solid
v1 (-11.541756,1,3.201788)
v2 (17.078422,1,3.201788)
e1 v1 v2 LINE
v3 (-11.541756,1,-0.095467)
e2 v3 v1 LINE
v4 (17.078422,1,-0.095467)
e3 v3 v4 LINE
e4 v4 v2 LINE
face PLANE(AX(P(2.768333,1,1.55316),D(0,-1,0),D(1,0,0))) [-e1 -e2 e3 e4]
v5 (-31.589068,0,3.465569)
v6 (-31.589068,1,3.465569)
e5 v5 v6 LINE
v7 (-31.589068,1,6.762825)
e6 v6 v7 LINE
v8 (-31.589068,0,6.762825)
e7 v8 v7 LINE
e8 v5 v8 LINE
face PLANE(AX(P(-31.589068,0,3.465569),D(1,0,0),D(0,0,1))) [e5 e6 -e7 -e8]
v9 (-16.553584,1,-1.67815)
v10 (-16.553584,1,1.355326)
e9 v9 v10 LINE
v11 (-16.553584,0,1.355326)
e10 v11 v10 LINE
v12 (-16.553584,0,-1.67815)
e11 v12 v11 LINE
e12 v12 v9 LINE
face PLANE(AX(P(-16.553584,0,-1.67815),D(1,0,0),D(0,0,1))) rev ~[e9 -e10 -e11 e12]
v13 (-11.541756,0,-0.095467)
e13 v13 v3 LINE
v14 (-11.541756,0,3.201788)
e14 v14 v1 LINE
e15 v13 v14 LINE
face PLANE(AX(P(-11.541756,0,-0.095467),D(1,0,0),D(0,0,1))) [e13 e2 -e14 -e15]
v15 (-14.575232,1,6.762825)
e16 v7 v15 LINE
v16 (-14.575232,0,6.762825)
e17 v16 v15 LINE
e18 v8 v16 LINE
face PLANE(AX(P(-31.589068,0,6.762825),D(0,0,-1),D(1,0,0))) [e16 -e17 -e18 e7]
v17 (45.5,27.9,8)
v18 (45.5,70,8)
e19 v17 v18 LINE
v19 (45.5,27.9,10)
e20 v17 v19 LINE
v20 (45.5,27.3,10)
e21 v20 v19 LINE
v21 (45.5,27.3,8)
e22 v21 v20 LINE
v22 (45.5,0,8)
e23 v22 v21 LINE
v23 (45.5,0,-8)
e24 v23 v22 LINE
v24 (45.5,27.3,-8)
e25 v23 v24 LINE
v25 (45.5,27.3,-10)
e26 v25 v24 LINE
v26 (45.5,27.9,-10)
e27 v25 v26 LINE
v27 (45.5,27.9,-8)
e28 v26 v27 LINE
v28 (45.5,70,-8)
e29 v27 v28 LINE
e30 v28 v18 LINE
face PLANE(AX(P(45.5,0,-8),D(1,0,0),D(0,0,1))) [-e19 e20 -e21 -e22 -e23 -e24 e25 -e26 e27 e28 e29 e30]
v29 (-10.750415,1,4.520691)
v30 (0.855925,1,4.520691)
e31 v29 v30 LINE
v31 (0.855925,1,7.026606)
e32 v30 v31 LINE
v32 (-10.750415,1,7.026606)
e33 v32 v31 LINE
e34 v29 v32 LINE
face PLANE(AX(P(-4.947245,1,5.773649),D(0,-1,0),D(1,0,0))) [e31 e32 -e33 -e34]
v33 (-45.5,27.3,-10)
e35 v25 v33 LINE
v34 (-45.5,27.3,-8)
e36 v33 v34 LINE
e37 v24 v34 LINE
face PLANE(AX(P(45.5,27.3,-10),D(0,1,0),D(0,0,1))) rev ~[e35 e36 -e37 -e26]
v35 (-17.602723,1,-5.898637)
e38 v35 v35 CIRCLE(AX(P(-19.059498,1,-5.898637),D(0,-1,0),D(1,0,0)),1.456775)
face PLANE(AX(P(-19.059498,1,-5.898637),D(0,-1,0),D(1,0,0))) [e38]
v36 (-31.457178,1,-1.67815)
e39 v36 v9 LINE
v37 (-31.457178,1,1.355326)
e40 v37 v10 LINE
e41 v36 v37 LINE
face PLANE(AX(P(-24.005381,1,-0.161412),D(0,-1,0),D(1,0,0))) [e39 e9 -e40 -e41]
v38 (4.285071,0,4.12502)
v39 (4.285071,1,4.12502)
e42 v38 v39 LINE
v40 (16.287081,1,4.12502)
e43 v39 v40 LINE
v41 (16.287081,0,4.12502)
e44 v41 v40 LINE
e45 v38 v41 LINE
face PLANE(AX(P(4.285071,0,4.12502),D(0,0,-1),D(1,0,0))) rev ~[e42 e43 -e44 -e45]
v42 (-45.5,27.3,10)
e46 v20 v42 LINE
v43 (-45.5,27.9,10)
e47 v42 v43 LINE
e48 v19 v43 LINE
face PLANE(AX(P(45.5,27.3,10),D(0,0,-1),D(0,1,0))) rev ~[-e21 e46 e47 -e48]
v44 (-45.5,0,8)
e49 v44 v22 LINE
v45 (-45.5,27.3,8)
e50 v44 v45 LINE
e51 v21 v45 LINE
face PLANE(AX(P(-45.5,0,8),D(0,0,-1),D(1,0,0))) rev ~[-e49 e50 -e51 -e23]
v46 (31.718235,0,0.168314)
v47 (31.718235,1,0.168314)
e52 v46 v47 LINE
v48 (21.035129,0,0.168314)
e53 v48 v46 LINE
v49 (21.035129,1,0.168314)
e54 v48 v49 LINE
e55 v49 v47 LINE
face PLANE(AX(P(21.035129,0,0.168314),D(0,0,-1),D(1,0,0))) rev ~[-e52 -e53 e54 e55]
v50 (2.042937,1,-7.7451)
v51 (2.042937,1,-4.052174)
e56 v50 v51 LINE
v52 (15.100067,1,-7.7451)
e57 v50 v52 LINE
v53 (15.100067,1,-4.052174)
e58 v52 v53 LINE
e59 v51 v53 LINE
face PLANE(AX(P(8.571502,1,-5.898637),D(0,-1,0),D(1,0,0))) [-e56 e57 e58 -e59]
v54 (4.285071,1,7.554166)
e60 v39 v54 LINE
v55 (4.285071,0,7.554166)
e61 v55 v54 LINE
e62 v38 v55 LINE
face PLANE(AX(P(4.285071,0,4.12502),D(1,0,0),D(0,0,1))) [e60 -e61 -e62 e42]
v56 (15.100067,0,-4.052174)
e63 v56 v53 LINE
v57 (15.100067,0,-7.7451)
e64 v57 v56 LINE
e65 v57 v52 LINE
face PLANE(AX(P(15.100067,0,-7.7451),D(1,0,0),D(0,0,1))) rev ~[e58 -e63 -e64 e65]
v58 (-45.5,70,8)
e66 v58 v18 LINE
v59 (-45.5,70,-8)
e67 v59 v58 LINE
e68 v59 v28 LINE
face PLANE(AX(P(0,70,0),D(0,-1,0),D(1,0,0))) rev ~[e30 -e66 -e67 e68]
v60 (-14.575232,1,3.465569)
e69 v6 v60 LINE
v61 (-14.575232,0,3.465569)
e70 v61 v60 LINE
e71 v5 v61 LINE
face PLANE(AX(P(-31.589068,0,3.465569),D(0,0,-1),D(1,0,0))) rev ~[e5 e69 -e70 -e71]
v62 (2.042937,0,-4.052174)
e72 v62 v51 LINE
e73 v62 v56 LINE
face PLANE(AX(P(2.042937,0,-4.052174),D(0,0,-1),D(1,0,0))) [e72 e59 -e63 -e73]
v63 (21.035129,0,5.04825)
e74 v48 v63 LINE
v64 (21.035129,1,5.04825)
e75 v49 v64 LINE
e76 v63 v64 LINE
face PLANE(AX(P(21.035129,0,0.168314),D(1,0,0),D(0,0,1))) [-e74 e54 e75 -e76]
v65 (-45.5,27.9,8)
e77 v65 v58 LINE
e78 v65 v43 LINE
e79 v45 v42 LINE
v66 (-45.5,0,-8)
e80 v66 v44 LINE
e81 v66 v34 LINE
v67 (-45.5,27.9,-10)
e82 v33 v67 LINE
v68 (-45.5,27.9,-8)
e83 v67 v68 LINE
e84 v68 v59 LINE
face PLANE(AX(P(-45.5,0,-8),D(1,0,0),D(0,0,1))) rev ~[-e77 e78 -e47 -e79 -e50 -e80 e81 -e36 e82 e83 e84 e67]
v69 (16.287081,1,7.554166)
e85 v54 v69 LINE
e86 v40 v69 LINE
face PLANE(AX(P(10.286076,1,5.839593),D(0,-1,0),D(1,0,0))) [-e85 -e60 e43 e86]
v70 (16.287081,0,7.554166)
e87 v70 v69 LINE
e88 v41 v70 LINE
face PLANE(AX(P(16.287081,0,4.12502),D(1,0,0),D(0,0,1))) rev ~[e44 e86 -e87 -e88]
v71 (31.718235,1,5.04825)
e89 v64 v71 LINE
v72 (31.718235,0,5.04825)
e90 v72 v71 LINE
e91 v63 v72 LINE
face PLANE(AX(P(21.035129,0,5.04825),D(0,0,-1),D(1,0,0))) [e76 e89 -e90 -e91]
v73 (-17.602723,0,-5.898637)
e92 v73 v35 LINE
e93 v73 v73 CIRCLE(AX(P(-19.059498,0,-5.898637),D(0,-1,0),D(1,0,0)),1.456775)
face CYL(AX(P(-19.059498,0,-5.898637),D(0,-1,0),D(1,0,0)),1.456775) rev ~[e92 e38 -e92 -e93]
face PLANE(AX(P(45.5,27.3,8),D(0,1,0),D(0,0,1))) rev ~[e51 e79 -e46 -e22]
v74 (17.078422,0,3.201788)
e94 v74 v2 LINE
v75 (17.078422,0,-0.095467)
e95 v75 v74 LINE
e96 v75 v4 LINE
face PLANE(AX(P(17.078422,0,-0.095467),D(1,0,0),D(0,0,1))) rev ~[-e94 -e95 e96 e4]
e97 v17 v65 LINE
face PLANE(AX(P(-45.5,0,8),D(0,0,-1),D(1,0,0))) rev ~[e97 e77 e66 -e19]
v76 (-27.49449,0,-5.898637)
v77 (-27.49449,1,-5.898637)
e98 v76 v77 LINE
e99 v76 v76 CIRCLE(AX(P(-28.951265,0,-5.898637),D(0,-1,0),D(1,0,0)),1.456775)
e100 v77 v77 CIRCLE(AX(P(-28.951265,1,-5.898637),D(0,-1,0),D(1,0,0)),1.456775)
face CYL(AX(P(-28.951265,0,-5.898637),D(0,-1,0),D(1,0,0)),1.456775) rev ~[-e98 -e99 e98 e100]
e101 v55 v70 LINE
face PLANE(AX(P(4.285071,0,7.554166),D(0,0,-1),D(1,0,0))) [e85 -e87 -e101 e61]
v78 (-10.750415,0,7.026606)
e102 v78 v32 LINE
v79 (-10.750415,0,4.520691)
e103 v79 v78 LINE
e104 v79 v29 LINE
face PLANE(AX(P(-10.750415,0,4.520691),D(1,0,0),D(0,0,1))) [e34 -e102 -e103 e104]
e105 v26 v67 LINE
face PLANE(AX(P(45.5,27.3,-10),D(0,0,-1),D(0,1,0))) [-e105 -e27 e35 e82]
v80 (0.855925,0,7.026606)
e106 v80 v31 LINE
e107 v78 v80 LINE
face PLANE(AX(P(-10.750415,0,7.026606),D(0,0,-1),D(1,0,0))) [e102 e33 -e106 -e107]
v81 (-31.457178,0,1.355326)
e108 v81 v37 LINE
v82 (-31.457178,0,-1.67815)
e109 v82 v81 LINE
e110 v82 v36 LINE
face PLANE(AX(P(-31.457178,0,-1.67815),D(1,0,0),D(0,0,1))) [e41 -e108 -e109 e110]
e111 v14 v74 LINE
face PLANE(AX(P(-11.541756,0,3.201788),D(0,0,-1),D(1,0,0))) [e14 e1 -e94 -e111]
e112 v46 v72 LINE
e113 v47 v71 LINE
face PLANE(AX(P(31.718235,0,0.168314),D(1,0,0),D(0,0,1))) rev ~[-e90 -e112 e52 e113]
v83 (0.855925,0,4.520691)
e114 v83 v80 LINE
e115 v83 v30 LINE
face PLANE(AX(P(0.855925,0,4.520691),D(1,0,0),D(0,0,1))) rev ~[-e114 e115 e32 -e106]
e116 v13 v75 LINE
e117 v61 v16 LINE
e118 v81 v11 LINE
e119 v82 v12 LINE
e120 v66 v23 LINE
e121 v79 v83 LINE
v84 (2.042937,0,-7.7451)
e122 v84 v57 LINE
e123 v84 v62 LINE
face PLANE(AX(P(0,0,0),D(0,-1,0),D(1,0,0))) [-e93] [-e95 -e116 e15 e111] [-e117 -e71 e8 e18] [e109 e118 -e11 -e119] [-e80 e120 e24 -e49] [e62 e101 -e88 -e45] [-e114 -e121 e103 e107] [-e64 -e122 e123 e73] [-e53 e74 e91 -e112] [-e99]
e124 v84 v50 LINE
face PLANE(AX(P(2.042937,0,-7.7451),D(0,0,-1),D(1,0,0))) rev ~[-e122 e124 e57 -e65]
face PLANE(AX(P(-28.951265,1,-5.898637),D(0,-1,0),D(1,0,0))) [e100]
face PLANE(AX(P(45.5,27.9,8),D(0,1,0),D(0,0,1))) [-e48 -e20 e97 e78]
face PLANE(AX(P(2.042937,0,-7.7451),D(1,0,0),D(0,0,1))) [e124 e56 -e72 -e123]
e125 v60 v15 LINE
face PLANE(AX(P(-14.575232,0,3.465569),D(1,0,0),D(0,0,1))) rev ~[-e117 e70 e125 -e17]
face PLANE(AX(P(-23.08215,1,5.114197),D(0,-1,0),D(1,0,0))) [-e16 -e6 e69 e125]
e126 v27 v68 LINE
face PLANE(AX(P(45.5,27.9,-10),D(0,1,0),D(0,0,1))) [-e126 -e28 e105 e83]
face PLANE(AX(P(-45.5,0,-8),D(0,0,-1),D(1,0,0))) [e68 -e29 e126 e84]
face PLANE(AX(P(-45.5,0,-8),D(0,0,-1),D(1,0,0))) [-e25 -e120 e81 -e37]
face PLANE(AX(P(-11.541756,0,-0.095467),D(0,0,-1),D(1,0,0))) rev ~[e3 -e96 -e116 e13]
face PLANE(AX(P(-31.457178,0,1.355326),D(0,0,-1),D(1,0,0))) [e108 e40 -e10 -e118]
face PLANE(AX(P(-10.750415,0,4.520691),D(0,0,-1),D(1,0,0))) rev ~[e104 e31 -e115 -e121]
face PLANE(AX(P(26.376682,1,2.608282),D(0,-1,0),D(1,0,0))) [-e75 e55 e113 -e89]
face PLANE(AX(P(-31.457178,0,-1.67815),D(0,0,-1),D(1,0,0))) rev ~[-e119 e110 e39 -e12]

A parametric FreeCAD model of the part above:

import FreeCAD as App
import Part
import Sketcher
Q = App.Units.Quantity

doc = App.newDocument("Part")
body = doc.addObject("PartDesign::Body", "Body")

# Sketch on XZ plane
sketch1 = body.newObject("Sketcher::SketchObject", "Sketch")
sketch1.AttachmentSupport = (doc.getObject("XZ_Plane"), [""])
sketch1.MapMode = "FlatFace"
sketch1.addGeometry(Part.LineSegment(App.Vector(-46, 8, 0), App.Vector(-46, -8, 0)), False)
sketch1.addGeometry(Part.LineSegment(App.Vector(-46, -8, 0), App.Vector(46, -8, 0)), False)
sketch1.addGeometry(Part.LineSegment(App.Vector(46, -8, 0), App.Vector(46, 8, 0)), False)
sketch1.addGeometry(Part.LineSegment(App.Vector(46, 8, 0), App.Vector(-46, 8, 0)), False)
sketch1.addConstraint(Sketcher.Constraint("Coincident", 0, 2, 1, 1))
sketch1.addConstraint(Sketcher.Constraint("Coincident", 1, 2, 2, 1))
sketch1.addConstraint(Sketcher.Constraint("Coincident", 2, 2, 3, 1))
sketch1.addConstraint(Sketcher.Constraint("Coincident", 3, 2, 0, 1))
sketch1.addConstraint(Sketcher.Constraint("Vertical", 0))
sketch1.addConstraint(Sketcher.Constraint("Horizontal", 1))
sketch1.addConstraint(Sketcher.Constraint("Vertical", 2))
sketch1.addConstraint(Sketcher.Constraint("Horizontal", 3))
sketch1.addConstraint(Sketcher.Constraint("Symmetric", 0, 2, 2, 2, -1, 1))
sketch1.addConstraint(Sketcher.Constraint("DistanceX", 1, 1, 1, 2, Q("91 mm")))
sketch1.addConstraint(Sketcher.Constraint("DistanceY", 0, 2, 0, 1, Q("16 mm")))
pad1 = body.newObject("PartDesign::Pad", "Pad")
pad1.Profile = sketch1
pad1.Length = 70
pad1.Reversed = True

# Sketch on XZ plane
sketch2 = body.newObject("Sketcher::SketchObject", "Sketch001")
sketch2.AttachmentSupport = (doc.getObject("XZ_Plane"), [""])
sketch2.MapMode = "FlatFace"
sketch2.addGeometry(Part.Circle(App.Vector(-29, -5.9, 0), App.Vector(0, 0, 1), 1.5), False)
sketch2.addGeometry(Part.Circle(App.Vector(-19.1, -5.9, 0), App.Vector(0, 0, 1), 1.5), False)
sketch2.addGeometry(Part.LineSegment(App.Vector(21, 5, 0), App.Vector(21, 0.2, 0)), False)
sketch2.addGeometry(Part.LineSegment(App.Vector(21, 0.2, 0), App.Vector(31.7, 0.2, 0)), False)
sketch2.addGeometry(Part.LineSegment(App.Vector(31.7, 0.2, 0), App.Vector(31.7, 5, 0)), False)
sketch2.addGeometry(Part.LineSegment(App.Vector(31.7, 5, 0), App.Vector(21, 5, 0)), False)
sketch2.addGeometry(Part.LineSegment(App.Vector(2, -4.1, 0), App.Vector(2, -7.7, 0)), False)
sketch2.addGeometry(Part.LineSegment(App.Vector(2, -7.7, 0), App.Vector(15.1, -7.7, 0)), False)
sketch2.addGeometry(Part.LineSegment(App.Vector(15.1, -7.7, 0), App.Vector(15.1, -4.1, 0)), False)
sketch2.addGeometry(Part.LineSegment(App.Vector(15.1, -4.1, 0), App.Vector(2, -4.1, 0)), False)
sketch2.addGeometry(Part.LineSegment(App.Vector(-31.6, 6.8, 0), App.Vector(-31.6, 3.5, 0)), False)
sketch2.addGeometry(Part.LineSegment(App.Vector(-31.6, 3.5, 0), App.Vector(-14.6, 3.5, 0)), False)
sketch2.addGeometry(Part.LineSegment(App.Vector(-14.6, 3.5, 0), App.Vector(-14.6, 6.8, 0)), False)
sketch2.addGeometry(Part.LineSegment(App.Vector(-14.6, 6.8, 0), App.Vector(-31.6, 6.8, 0)), False)
sketch2.addGeometry(Part.LineSegment(App.Vector(-31.5, 1.4, 0), App.Vector(-31.5, -1.7, 0)), False)
sketch2.addGeometry(Part.LineSegment(App.Vector(-31.5, -1.7, 0), App.Vector(-16.6, -1.7, 0)), False)
sketch2.addGeometry(Part.LineSegment(App.Vector(-16.6, -1.7, 0), App.Vector(-16.6, 1.4, 0)), False)
sketch2.addGeometry(Part.LineSegment(App.Vector(-16.6, 1.4, 0), App.Vector(-31.5, 1.4, 0)), False)
sketch2.addGeometry(Part.LineSegment(App.Vector(-10.8, 7, 0), App.Vector(-10.8, 4.5, 0)), False)
sketch2.addGeometry(Part.LineSegment(App.Vector(-10.8, 4.5, 0), App.Vector(0.9, 4.5, 0)), False)
sketch2.addGeometry(Part.LineSegment(App.Vector(0.9, 4.5, 0), App.Vector(0.9, 7, 0)), False)
sketch2.addGeometry(Part.LineSegment(App.Vector(0.9, 7, 0), App.Vector(-10.8, 7, 0)), False)
sketch2.addGeometry(Part.LineSegment(App.Vector(4.3, 7.6, 0), App.Vector(4.3, 4.1, 0)), False)
sketch2.addGeometry(Part.LineSegment(App.Vector(4.3, 4.1, 0), App.Vector(16.3, 4.1, 0)), False)
sketch2.addGeometry(Part.LineSegment(App.Vector(16.3, 4.1, 0), App.Vector(16.3, 7.6, 0)), False)
sketch2.addGeometry(Part.LineSegment(App.Vector(16.3, 7.6, 0), App.Vector(4.3, 7.6, 0)), False)
sketch2.addGeometry(Part.LineSegment(App.Vector(-11.5, 3.2, 0), App.Vector(-11.5, -0.1, 0)), False)
sketch2.addGeometry(Part.LineSegment(App.Vector(-11.5, -0.1, 0), App.Vector(17.1, -0.1, 0)), False)
sketch2.addGeometry(Part.LineSegment(App.Vector(17.1, -0.1, 0), App.Vector(17.1, 3.2, 0)), False)
sketch2.addGeometry(Part.LineSegment(App.Vector(17.1, 3.2, 0), App.Vector(-11.5, 3.2, 0)), False)
sketch2.addConstraint(Sketcher.Constraint("Coincident", 2, 2, 3, 1))
sketch2.addConstraint(Sketcher.Constraint("Coincident", 3, 2, 4, 1))
sketch2.addConstraint(Sketcher.Constraint("Coincident", 4, 2, 5, 1))
sketch2.addConstraint(Sketcher.Constraint("Coincident", 5, 2, 2, 1))
sketch2.addConstraint(Sketcher.Constraint("Coincident", 6, 2, 7, 1))
sketch2.addConstraint(Sketcher.Constraint("Coincident", 7, 2, 8, 1))
sketch2.addConstraint(Sketcher.Constraint("Coincident", 8, 2, 9, 1))
sketch2.addConstraint(Sketcher.Constraint("Coincident", 9, 2, 6, 1))
sketch2.addConstraint(Sketcher.Constraint("Coincident", 10, 2, 11, 1))
sketch2.addConstraint(Sketcher.Constraint("Coincident", 11, 2, 12, 1))
sketch2.addConstraint(Sketcher.Constraint("Coincident", 12, 2, 13, 1))
sketch2.addConstraint(Sketcher.Constraint("Coincident", 13, 2, 10, 1))
sketch2.addConstraint(Sketcher.Constraint("Coincident", 14, 2, 15, 1))
sketch2.addConstraint(Sketcher.Constraint("Coincident", 15, 2, 16, 1))
sketch2.addConstraint(Sketcher.Constraint("Coincident", 16, 2, 17, 1))
sketch2.addConstraint(Sketcher.Constraint("Coincident", 17, 2, 14, 1))
sketch2.addConstraint(Sketcher.Constraint("Coincident", 18, 2, 19, 1))
sketch2.addConstraint(Sketcher.Constraint("Coincident", 19, 2, 20, 1))
sketch2.addConstraint(Sketcher.Constraint("Coincident", 20, 2, 21, 1))
sketch2.addConstraint(Sketcher.Constraint("Coincident", 21, 2, 18, 1))
sketch2.addConstraint(Sketcher.Constraint("Coincident", 22, 2, 23, 1))
sketch2.addConstraint(Sketcher.Constraint("Coincident", 23, 2, 24, 1))
sketch2.addConstraint(Sketcher.Constraint("Coincident", 24, 2, 25, 1))
sketch2.addConstraint(Sketcher.Constraint("Coincident", 25, 2, 22, 1))
sketch2.addConstraint(Sketcher.Constraint("Coincident", 26, 2, 27, 1))
sketch2.addConstraint(Sketcher.Constraint("Coincident", 27, 2, 28, 1))
sketch2.addConstraint(Sketcher.Constraint("Coincident", 28, 2, 29, 1))
sketch2.addConstraint(Sketcher.Constraint("Coincident", 29, 2, 26, 1))
sketch2.addConstraint(Sketcher.Constraint("Vertical", 2))
sketch2.addConstraint(Sketcher.Constraint("Horizontal", 3))
sketch2.addConstraint(Sketcher.Constraint("Vertical", 4))
sketch2.addConstraint(Sketcher.Constraint("Horizontal", 5))
sketch2.addConstraint(Sketcher.Constraint("Vertical", 6))
sketch2.addConstraint(Sketcher.Constraint("Horizontal", 7))
sketch2.addConstraint(Sketcher.Constraint("Vertical", 8))
sketch2.addConstraint(Sketcher.Constraint("Horizontal", 9))
sketch2.addConstraint(Sketcher.Constraint("Vertical", 10))
sketch2.addConstraint(Sketcher.Constraint("Horizontal", 11))
sketch2.addConstraint(Sketcher.Constraint("Vertical", 12))
sketch2.addConstraint(Sketcher.Constraint("Horizontal", 13))
sketch2.addConstraint(Sketcher.Constraint("Vertical", 14))
sketch2.addConstraint(Sketcher.Constraint("Horizontal", 15))
sketch2.addConstraint(Sketcher.Constraint("Vertical", 16))
sketch2.addConstraint(Sketcher.Constraint("Horizontal", 17))
sketch2.addConstraint(Sketcher.Constraint("Vertical", 18))
sketch2.addConstraint(Sketcher.Constraint("Horizontal", 19))
sketch2.addConstraint(Sketcher.Constraint("Vertical", 20))
sketch2.addConstraint(Sketcher.Constraint("Horizontal", 21))
sketch2.addConstraint(Sketcher.Constraint("Vertical", 22))
sketch2.addConstraint(Sketcher.Constraint("Horizontal", 23))
sketch2.addConstraint(Sketcher.Constraint("Vertical", 24))
sketch2.addConstraint(Sketcher.Constraint("Horizontal", 25))
sketch2.addConstraint(Sketcher.Constraint("Vertical", 26))
sketch2.addConstraint(Sketcher.Constraint("Horizontal", 27))
sketch2.addConstraint(Sketcher.Constraint("Vertical", 28))
sketch2.addConstraint(Sketcher.Constraint("Horizontal", 29))
sketch2.addConstraint(Sketcher.Constraint("Equal", 0, 1))
sketch2.addConstraint(Sketcher.Constraint("Horizontal", 0, 3, 1, 3))
sketch2.addConstraint(Sketcher.Constraint("Equal", 12, 26))
sketch2.addConstraint(Sketcher.Constraint("Diameter", 0, Q("2.91355 mm")))
sketch2.addConstraint(Sketcher.Constraint("DistanceY", 9, 2, 12, 2, Q("10.814999 mm")))
sketch2.addConstraint(Sketcher.Constraint("DistanceX", 7, 1, 7, 2, Q("13.057131 mm")))
sketch2.addConstraint(Sketcher.Constraint("DistanceX", 19, 1, 19, 2, Q("11.60634 mm")))
sketch2.addConstraint(Sketcher.Constraint("DistanceX", 23, 1, 23, 2, Q("12.00201 mm")))
sketch2.addConstraint(Sketcher.Constraint("DistanceX", 1, 3, -1, 1, Q("19.059498 mm")))
sketch2.addConstraint(Sketcher.Constraint("DistanceY", 6, 2, -1, 1, Q("7.7451 mm")))
sketch2.addConstraint(Sketcher.Constraint("DistanceX", 0, 3, 3, 2, Q("60.6695 mm")))
sketch2.addConstraint(Sketcher.Constraint("DistanceX", 6, 2, 3, 2, Q("29.675299 mm")))
sketch2.addConstraint(Sketcher.Constraint("DistanceY", 16, 2, 12, 2, Q("5.407499 mm")))
sketch2.addConstraint(Sketcher.Constraint("DistanceX", 3, 1, 3, 2, Q("10.683106 mm")))
sketch2.addConstraint(Sketcher.Constraint("DistanceX", 11, 1, 11, 2, Q("17.013836 mm")))
sketch2.addConstraint(Sketcher.Constraint("DistanceX", 15, 1, 15, 2, Q("14.903594 mm")))
sketch2.addConstraint(Sketcher.Constraint("DistanceX", 27, 1, 27, 2, Q("28.620178 mm")))
sketch2.addConstraint(Sketcher.Constraint("DistanceY", 2, 2, 2, 1, Q("4.879937 mm")))
sketch2.addConstraint(Sketcher.Constraint("DistanceY", 6, 2, 6, 1, Q("3.692926 mm")))
sketch2.addConstraint(Sketcher.Constraint("DistanceY", 10, 2, 10, 1, Q("3.297256 mm")))
sketch2.addConstraint(Sketcher.Constraint("DistanceY", 14, 2, 14, 1, Q("3.033476 mm")))
sketch2.addConstraint(Sketcher.Constraint("DistanceY", 18, 2, 18, 1, Q("2.505915 mm")))
sketch2.addConstraint(Sketcher.Constraint("DistanceY", 22, 2, 22, 1, Q("3.429146 mm")))
sketch2.addConstraint(Sketcher.Constraint("DistanceX", -1, 1, 2, 2, Q("21.035129 mm")))
sketch2.addConstraint(Sketcher.Constraint("DistanceY", -1, 1, 4, 2, Q("5.04825 mm")))
sketch2.addConstraint(Sketcher.Constraint("DistanceX", 10, 2, -1, 1, Q("31.589068 mm")))
sketch2.addConstraint(Sketcher.Constraint("DistanceY", -1, 1, 18, 2, Q("4.520691 mm")))
sketch2.addConstraint(Sketcher.Constraint("DistanceX", -1, 1, 22, 2, Q("4.285071 mm")))
sketch2.addConstraint(Sketcher.Constraint("DistanceY", -1, 1, 22, 2, Q("4.12502 mm")))
sketch2.addConstraint(Sketcher.Constraint("DistanceX", -1, 1, 27, 2, Q("17.078422 mm")))
sketch2.addConstraint(Sketcher.Constraint("DistanceY", 1, 3, 2, 2, Q("6.06695 mm")))
sketch2.addConstraint(Sketcher.Constraint("DistanceX", 10, 2, 14, 2, Q("0.13189 mm")))
sketch2.addConstraint(Sketcher.Constraint("DistanceX", 16, 2, 18, 2, Q("5.803169 mm")))
sketch2.addConstraint(Sketcher.Constraint("DistanceY", 26, 2, 18, 2, Q("4.616159 mm")))
pocket1 = body.newObject("PartDesign::Pocket", "Pocket")
pocket1.Profile = sketch2
pocket1.Length = 1

# Sketch on YZ plane
sketch3 = body.newObject("Sketcher::SketchObject", "Sketch002")
sketch3.AttachmentSupport = (doc.getObject("YZ_Plane"), [""])
sketch3.MapMode = "FlatFace"
sketch3.AttachmentOffset = App.Placement(App.Vector(0, 0, 45.5), App.Rotation())
sketch3.addGeometry(Part.LineSegment(App.Vector(27.3, 10, 0), App.Vector(27.3, 8, 0)), False)
sketch3.addGeometry(Part.LineSegment(App.Vector(27.3, 8, 0), App.Vector(27.9, 8, 0)), False)
sketch3.addGeometry(Part.LineSegment(App.Vector(27.9, 8, 0), App.Vector(27.9, 10, 0)), False)
sketch3.addGeometry(Part.LineSegment(App.Vector(27.9, 10, 0), App.Vector(27.3, 10, 0)), False)
sketch3.addGeometry(Part.LineSegment(App.Vector(27.3, -8, 0), App.Vector(27.3, -10, 0)), False)
sketch3.addGeometry(Part.LineSegment(App.Vector(27.3, -10, 0), App.Vector(27.9, -10, 0)), False)
sketch3.addGeometry(Part.LineSegment(App.Vector(27.9, -10, 0), App.Vector(27.9, -8, 0)), False)
sketch3.addGeometry(Part.LineSegment(App.Vector(27.9, -8, 0), App.Vector(27.3, -8, 0)), False)
sketch3.addConstraint(Sketcher.Constraint("Coincident", 0, 2, 1, 1))
sketch3.addConstraint(Sketcher.Constraint("Coincident", 1, 2, 2, 1))
sketch3.addConstraint(Sketcher.Constraint("Coincident", 2, 2, 3, 1))
sketch3.addConstraint(Sketcher.Constraint("Coincident", 3, 2, 0, 1))
sketch3.addConstraint(Sketcher.Constraint("Coincident", 4, 2, 5, 1))
sketch3.addConstraint(Sketcher.Constraint("Coincident", 5, 2, 6, 1))
sketch3.addConstraint(Sketcher.Constraint("Coincident", 6, 2, 7, 1))
sketch3.addConstraint(Sketcher.Constraint("Coincident", 7, 2, 4, 1))
sketch3.addConstraint(Sketcher.Constraint("Vertical", 0))
sketch3.addConstraint(Sketcher.Constraint("Horizontal", 1))
sketch3.addConstraint(Sketcher.Constraint("Vertical", 2))
sketch3.addConstraint(Sketcher.Constraint("Horizontal", 3))
sketch3.addConstraint(Sketcher.Constraint("Vertical", 4))
sketch3.addConstraint(Sketcher.Constraint("Horizontal", 5))
sketch3.addConstraint(Sketcher.Constraint("Vertical", 6))
sketch3.addConstraint(Sketcher.Constraint("Horizontal", 7))
sketch3.addConstraint(Sketcher.Constraint("Symmetric", 3, 2, 4, 2, -1))
sketch3.addConstraint(Sketcher.Constraint("Symmetric", 1, 2, 6, 2, -1))
sketch3.addConstraint(Sketcher.Constraint("DistanceY", 0, 2, 0, 1, Q("2 mm")))
sketch3.addConstraint(Sketcher.Constraint("DistanceX", 1, 1, 1, 2, Q("0.6 mm")))
sketch3.addConstraint(Sketcher.Constraint("DistanceY", -1, 1, 0, 2, Q("8 mm")))
sketch3.addConstraint(Sketcher.Constraint("DistanceX", -1, 1, 0, 2, Q("27.3 mm")))
pad2 = body.newObject("PartDesign::Pad", "Pad001")
pad2.Profile = sketch3
pad2.Type = "UpToLast"
pad2.Reversed = True

doc.recompute()
